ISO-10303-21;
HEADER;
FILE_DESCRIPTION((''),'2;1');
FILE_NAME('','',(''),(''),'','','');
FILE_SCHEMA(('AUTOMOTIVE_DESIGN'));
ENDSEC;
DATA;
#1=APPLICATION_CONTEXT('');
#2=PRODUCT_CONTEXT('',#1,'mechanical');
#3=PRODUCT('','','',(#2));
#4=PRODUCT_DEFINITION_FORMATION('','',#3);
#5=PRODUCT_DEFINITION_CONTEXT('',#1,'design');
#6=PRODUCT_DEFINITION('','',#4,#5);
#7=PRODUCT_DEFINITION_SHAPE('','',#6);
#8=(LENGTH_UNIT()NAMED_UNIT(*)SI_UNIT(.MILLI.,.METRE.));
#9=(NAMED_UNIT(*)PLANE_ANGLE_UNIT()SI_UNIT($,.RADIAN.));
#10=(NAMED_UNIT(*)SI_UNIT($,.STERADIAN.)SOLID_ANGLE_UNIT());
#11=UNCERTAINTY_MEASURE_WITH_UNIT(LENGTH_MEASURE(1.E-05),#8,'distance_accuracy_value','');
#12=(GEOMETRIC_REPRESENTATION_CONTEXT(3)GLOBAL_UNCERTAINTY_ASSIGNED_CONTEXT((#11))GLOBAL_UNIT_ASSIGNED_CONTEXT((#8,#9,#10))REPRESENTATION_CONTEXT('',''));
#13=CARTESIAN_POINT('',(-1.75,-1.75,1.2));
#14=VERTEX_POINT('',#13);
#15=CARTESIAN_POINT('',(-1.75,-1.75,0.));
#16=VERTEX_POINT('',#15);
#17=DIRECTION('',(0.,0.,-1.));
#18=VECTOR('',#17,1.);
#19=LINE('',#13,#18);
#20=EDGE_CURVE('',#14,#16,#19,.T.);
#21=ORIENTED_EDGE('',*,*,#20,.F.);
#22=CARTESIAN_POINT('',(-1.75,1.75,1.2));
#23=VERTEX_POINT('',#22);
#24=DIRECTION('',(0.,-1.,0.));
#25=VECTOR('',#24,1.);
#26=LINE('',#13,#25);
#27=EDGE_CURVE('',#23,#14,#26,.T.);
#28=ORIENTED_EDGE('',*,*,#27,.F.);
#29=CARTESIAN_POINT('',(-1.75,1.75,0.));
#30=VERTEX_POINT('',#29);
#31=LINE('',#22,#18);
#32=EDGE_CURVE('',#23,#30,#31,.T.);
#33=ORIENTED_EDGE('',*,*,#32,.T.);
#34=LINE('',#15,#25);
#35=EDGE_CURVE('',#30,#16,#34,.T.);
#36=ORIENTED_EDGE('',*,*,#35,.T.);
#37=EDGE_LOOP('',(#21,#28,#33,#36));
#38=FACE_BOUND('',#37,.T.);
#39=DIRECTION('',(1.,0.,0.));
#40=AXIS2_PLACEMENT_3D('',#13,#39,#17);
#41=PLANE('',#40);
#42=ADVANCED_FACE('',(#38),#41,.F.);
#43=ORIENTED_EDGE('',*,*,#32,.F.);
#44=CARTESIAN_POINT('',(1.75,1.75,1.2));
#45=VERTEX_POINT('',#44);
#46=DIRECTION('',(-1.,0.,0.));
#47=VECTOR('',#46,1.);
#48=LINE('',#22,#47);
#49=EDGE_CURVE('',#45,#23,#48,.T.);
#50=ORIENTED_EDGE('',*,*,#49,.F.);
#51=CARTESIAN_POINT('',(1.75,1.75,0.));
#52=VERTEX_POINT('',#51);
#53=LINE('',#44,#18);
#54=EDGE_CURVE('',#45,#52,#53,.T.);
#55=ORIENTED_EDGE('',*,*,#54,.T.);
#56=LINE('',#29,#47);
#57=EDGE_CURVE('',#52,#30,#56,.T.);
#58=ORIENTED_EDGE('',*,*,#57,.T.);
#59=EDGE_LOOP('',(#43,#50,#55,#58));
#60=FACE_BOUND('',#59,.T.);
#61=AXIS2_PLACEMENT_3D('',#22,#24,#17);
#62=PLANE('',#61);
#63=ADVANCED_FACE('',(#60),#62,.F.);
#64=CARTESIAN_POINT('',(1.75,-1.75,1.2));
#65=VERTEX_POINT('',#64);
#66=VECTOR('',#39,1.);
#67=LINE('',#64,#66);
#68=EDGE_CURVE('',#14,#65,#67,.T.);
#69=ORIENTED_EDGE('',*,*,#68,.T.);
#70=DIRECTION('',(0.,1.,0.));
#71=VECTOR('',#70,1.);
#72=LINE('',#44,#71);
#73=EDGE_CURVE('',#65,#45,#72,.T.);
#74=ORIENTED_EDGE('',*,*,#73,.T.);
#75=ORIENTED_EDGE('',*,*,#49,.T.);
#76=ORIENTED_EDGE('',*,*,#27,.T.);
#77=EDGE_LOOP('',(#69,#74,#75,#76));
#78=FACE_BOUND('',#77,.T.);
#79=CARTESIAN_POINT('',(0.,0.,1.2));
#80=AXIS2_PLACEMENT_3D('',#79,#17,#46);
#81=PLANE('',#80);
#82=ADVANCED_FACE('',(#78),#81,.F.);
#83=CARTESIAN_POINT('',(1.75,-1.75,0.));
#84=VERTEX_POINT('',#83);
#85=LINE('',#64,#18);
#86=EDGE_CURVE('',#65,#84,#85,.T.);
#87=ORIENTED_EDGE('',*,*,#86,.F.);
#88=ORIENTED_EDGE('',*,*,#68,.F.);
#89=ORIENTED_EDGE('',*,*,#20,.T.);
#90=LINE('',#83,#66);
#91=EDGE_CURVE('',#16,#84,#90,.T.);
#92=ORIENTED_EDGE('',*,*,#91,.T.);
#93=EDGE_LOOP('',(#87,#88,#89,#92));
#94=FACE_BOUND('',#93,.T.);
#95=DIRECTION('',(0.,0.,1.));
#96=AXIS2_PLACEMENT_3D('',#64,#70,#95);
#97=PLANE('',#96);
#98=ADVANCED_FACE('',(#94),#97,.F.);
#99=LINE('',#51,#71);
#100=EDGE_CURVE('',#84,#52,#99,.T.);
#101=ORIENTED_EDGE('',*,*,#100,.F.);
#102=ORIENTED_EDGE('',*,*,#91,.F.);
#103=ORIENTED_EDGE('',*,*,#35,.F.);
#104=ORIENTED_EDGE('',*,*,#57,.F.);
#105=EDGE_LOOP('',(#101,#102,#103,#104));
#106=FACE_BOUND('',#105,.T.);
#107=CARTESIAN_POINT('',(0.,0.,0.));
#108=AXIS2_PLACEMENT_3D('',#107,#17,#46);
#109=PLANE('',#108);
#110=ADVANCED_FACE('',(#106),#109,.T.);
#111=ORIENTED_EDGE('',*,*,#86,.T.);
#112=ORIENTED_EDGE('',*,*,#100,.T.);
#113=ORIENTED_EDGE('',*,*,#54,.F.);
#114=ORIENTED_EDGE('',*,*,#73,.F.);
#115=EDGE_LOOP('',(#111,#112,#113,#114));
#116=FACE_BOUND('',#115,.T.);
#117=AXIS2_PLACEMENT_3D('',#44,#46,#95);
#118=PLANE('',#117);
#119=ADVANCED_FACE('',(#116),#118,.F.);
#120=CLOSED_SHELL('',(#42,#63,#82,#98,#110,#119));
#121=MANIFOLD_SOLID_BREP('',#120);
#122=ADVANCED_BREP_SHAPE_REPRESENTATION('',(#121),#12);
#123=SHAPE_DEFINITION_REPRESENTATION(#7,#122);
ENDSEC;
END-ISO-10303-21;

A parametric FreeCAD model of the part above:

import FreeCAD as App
import Part
import Sketcher

V = App.Vector
Q = App.Units.Quantity

doc = App.newDocument("Part")
body = doc.addObject("PartDesign::Body", "Body")

# Sketch on XY plane
sketch1 = body.newObject("Sketcher::SketchObject", "Sketch")
sketch1.AttachmentSupport = (doc.getObject("XY_Plane"), [""])
sketch1.MapMode = "FlatFace"
sketch1.addGeometry([
    Part.LineSegment(V(-1.8, 1.8, 0), V(-1.8, -1.8, 0)),
    Part.LineSegment(V(-1.8, -1.8, 0), V(1.8, -1.8, 0)),
    Part.LineSegment(V(1.8, -1.8, 0), V(1.8, 1.8, 0)),
    Part.LineSegment(V(1.8, 1.8, 0), V(-1.8, 1.8, 0)),
], False)
sketch1.addConstraint([
    Sketcher.Constraint("Coincident", 0, 2, 1, 1),
    Sketcher.Constraint("Coincident", 1, 2, 2, 1),
    Sketcher.Constraint("Coincident", 2, 2, 3, 1),
    Sketcher.Constraint("Coincident", 3, 2, 0, 1),
    Sketcher.Constraint("Vertical", 0),
    Sketcher.Constraint("Horizontal", 1),
    Sketcher.Constraint("Vertical", 2),
    Sketcher.Constraint("Horizontal", 3),
    Sketcher.Constraint("Symmetric", 0, 2, 2, 2, -1, 1),
    Sketcher.Constraint("Equal", 3, 0),
    Sketcher.Constraint("DistanceX", 1, 1, 1, 2, Q("3.5 mm")),
])
pad1 = body.newObject("PartDesign::Pad", "Pad")
pad1.Profile = sketch1
pad1.Length = 1.2

doc.recompute()
